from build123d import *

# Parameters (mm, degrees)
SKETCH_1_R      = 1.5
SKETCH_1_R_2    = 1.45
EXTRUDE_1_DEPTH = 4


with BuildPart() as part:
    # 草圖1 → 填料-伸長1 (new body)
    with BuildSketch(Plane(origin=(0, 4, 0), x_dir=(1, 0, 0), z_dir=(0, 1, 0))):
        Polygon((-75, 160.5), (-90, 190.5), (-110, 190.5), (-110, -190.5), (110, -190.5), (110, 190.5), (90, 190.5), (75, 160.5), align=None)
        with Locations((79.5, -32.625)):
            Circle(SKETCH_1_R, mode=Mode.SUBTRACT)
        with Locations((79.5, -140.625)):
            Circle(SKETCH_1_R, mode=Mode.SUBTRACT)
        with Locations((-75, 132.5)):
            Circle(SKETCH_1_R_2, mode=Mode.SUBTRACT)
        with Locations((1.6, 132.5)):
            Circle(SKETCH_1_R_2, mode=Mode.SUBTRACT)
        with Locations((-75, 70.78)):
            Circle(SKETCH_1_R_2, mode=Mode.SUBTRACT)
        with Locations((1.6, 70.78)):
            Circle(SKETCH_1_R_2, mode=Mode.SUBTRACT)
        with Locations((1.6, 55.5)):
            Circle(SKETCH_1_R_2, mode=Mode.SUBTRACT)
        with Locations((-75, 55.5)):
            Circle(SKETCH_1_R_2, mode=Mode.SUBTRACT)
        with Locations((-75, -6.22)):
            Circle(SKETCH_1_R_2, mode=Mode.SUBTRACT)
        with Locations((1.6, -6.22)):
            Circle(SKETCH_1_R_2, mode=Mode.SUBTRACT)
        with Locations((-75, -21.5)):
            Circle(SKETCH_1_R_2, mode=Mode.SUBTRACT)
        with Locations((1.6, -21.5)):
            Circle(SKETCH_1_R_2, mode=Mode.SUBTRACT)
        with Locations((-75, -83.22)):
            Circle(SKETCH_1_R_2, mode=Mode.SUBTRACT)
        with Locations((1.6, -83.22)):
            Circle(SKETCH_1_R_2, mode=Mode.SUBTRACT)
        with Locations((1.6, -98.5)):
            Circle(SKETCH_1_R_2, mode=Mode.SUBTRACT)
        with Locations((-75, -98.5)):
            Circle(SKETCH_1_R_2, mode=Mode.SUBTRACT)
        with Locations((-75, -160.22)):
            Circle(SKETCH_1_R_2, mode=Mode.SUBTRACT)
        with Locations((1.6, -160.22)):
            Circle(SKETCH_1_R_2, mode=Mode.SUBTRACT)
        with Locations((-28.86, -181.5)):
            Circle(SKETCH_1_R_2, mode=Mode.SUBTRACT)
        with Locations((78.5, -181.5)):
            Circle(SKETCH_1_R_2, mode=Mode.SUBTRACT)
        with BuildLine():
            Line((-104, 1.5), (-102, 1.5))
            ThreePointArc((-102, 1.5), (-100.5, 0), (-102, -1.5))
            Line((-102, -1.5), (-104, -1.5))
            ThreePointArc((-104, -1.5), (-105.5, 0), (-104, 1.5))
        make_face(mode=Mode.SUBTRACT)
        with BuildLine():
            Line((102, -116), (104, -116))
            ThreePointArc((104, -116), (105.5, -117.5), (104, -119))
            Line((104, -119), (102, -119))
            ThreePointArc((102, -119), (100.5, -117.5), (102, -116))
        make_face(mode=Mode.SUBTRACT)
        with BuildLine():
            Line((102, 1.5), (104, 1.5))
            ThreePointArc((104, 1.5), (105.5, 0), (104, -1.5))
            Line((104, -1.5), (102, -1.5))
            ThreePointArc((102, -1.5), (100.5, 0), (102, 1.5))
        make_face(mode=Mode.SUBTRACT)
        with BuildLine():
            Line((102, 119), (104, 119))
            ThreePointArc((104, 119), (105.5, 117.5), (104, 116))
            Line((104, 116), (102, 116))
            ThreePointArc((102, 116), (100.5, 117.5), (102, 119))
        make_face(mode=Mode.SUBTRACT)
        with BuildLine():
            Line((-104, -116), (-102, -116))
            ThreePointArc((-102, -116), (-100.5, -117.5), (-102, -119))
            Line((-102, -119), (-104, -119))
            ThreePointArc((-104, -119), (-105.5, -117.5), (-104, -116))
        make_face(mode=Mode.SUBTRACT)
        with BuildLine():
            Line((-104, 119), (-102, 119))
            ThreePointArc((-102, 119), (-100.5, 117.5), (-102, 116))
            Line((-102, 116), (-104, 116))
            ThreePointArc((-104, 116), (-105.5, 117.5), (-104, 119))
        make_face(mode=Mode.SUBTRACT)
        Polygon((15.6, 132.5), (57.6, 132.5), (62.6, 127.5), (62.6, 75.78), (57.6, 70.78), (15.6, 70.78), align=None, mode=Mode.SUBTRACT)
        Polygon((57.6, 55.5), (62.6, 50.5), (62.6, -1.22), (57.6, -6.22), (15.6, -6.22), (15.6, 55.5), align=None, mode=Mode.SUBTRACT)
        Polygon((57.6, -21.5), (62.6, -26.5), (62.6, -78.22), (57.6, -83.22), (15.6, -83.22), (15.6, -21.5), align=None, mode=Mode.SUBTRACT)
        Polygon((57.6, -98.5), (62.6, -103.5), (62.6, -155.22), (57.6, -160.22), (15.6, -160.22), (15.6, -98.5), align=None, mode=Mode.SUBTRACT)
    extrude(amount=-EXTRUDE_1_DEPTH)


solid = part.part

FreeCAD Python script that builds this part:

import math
import FreeCAD as App
import Part
import Sketcher
Q = App.Units.Quantity

doc = App.newDocument("Part")
body = doc.addObject("PartDesign::Body", "Body")

sketch1 = doc.addObject("Sketcher::SketchObject", "Sketch")
body.addObject(sketch1)
sketch1.AttachmentSupport = (doc.XZ_Plane, [""])
sketch1.MapMode = "FlatFace"
sketch1.AttachmentOffset = App.Placement(App.Vector(0, 0, -4), App.Rotation())
sketch1.addGeometry([
    Part.LineSegment(App.Vector(-75, -160.5, 0), App.Vector(-90, -190.5, 0)),
    Part.LineSegment(App.Vector(-90, -190.5, 0), App.Vector(-110, -190.5, 0)),
    Part.LineSegment(App.Vector(-110, -190.5, 0), App.Vector(-110, 190.5, 0)),
    Part.LineSegment(App.Vector(-110, 190.5, 0), App.Vector(110, 190.5, 0)),
    Part.LineSegment(App.Vector(110, 190.5, 0), App.Vector(110, -190.5, 0)),
    Part.LineSegment(App.Vector(110, -190.5, 0), App.Vector(90, -190.5, 0)),
    Part.LineSegment(App.Vector(90, -190.5, 0), App.Vector(75, -160.5, 0)),
    Part.LineSegment(App.Vector(75, -160.5, 0), App.Vector(-75, -160.5, 0)),
    Part.Circle(App.Vector(-75, 160.2, 0), App.Vector(0, 0, 1), 1.4),
    Part.ArcOfCircle(Part.Circle(App.Vector(-104, 117.5, 0), App.Vector(0, 0, 1), 1.5), math.radians(90), math.radians(270)),
    Part.LineSegment(App.Vector(-104, 116, 0), App.Vector(-102, 116, 0)),
    Part.ArcOfCircle(Part.Circle(App.Vector(-102, 117.5, 0), App.Vector(0, 0, 1), 1.5), math.radians(-90), math.radians(90)),
    Part.LineSegment(App.Vector(-102, 119, 0), App.Vector(-104, 119, 0)),
    Part.Circle(App.Vector(-28.9, 181.5, 0), App.Vector(0, 0, 1), 1.4),
    Part.Circle(App.Vector(-75, 98.5, 0), App.Vector(0, 0, 1), 1.4),
    Part.Circle(App.Vector(-75, 83.2, 0), App.Vector(0, 0, 1), 1.4),
    Part.Circle(App.Vector(1.6, 160.2, 0), App.Vector(0, 0, 1), 1.4),
    Part.LineSegment(App.Vector(15.6, 98.5, 0), App.Vector(57.6, 98.5, 0)),
    Part.LineSegment(App.Vector(57.6, 98.5, 0), App.Vector(62.6, 103.5, 0)),
    Part.LineSegment(App.Vector(62.6, 103.5, 0), App.Vector(62.6, 155.2, 0)),
    Part.LineSegment(App.Vector(62.6, 155.2, 0), App.Vector(57.6, 160.2, 0)),
    Part.LineSegment(App.Vector(57.6, 160.2, 0), App.Vector(15.6, 160.2, 0)),
    Part.LineSegment(App.Vector(15.6, 160.2, 0), App.Vector(15.6, 98.5, 0)),
    Part.Circle(App.Vector(78.5, 181.5, 0), App.Vector(0, 0, 1), 1.4),
    Part.Circle(App.Vector(79.5, 140.6, 0), App.Vector(0, 0, 1), 1.5),
    Part.ArcOfCircle(Part.Circle(App.Vector(102, 117.5, 0), App.Vector(0, 0, 1), 1.5), math.radians(90), math.radians(270)),
    Part.LineSegment(App.Vector(102, 116, 0), App.Vector(104, 116, 0)),
    Part.ArcOfCircle(Part.Circle(App.Vector(104, 117.5, 0), App.Vector(0, 0, 1), 1.5), math.radians(-90), math.radians(90)),
    Part.LineSegment(App.Vector(104, 119, 0), App.Vector(102, 119, 0)),
    Part.Circle(App.Vector(1.6, 98.5, 0), App.Vector(0, 0, 1), 1.4),
    Part.Circle(App.Vector(1.6, 83.2, 0), App.Vector(0, 0, 1), 1.4),
    Part.LineSegment(App.Vector(15.6, 21.5, 0), App.Vector(57.6, 21.5, 0)),
    Part.LineSegment(App.Vector(57.6, 21.5, 0), App.Vector(62.6, 26.5, 0)),
    Part.LineSegment(App.Vector(62.6, 26.5, 0), App.Vector(62.6, 78.2, 0)),
    Part.LineSegment(App.Vector(62.6, 78.2, 0), App.Vector(57.6, 83.2, 0)),
    Part.LineSegment(App.Vector(57.6, 83.2, 0), App.Vector(15.6, 83.2, 0)),
    Part.LineSegment(App.Vector(15.6, 83.2, 0), App.Vector(15.6, 21.5, 0)),
    Part.Circle(App.Vector(79.5, 32.6, 0), App.Vector(0, 0, 1), 1.5),
    Part.ArcOfCircle(Part.Circle(App.Vector(-104, 0, 0), App.Vector(0, 0, 1), 1.5), math.radians(90), math.radians(270)),
    Part.LineSegment(App.Vector(-104, -1.5, 0), App.Vector(-102, -1.5, 0)),
    Part.ArcOfCircle(Part.Circle(App.Vector(-102, 0, 0), App.Vector(0, 0, 1), 1.5), math.radians(-90), math.radians(90)),
    Part.LineSegment(App.Vector(-102, 1.5, 0), App.Vector(-104, 1.5, 0)),
    Part.Circle(App.Vector(-75, 21.5, 0), App.Vector(0, 0, 1), 1.4),
    Part.Circle(App.Vector(-75, 6.2, 0), App.Vector(0, 0, 1), 1.4),
    Part.Circle(App.Vector(-75, -55.5, 0), App.Vector(0, 0, 1), 1.4),
    Part.Circle(App.Vector(-75, -70.8, 0), App.Vector(0, 0, 1), 1.4),
    Part.ArcOfCircle(Part.Circle(App.Vector(-104, -117.5, 0), App.Vector(0, 0, 1), 1.5), math.radians(90), math.radians(270)),
    Part.LineSegment(App.Vector(-104, -119, 0), App.Vector(-102, -119, 0)),
    Part.ArcOfCircle(Part.Circle(App.Vector(-102, -117.5, 0), App.Vector(0, 0, 1), 1.5), math.radians(-90), math.radians(90)),
    Part.LineSegment(App.Vector(-102, -116, 0), App.Vector(-104, -116, 0)),
    Part.Circle(App.Vector(-75, -132.5, 0), App.Vector(0, 0, 1), 1.4),
    Part.Circle(App.Vector(1.6, 21.5, 0), App.Vector(0, 0, 1), 1.4),
    Part.Circle(App.Vector(1.6, 6.2, 0), App.Vector(0, 0, 1), 1.4),
    Part.LineSegment(App.Vector(15.6, -55.5, 0), App.Vector(57.6, -55.5, 0)),
    Part.LineSegment(App.Vector(57.6, -55.5, 0), App.Vector(62.6, -50.5, 0)),
    Part.LineSegment(App.Vector(62.6, -50.5, 0), App.Vector(62.6, 1.2, 0)),
    Part.LineSegment(App.Vector(62.6, 1.2, 0), App.Vector(57.6, 6.2, 0)),
    Part.LineSegment(App.Vector(57.6, 6.2, 0), App.Vector(15.6, 6.2, 0)),
    Part.LineSegment(App.Vector(15.6, 6.2, 0), App.Vector(15.6, -55.5, 0)),
    Part.ArcOfCircle(Part.Circle(App.Vector(102, 0, 0), App.Vector(0, 0, 1), 1.5), math.radians(90), math.radians(270)),
    Part.LineSegment(App.Vector(102, -1.5, 0), App.Vector(104, -1.5, 0)),
    Part.ArcOfCircle(Part.Circle(App.Vector(104, 0, 0), App.Vector(0, 0, 1), 1.5), math.radians(-90), math.radians(90)),
    Part.LineSegment(App.Vector(104, 1.5, 0), App.Vector(102, 1.5, 0)),
    Part.Circle(App.Vector(1.6, -55.5, 0), App.Vector(0, 0, 1), 1.4),
    Part.Circle(App.Vector(1.6, -70.8, 0), App.Vector(0, 0, 1), 1.4),
    Part.Circle(App.Vector(1.6, -132.5, 0), App.Vector(0, 0, 1), 1.4),
    Part.LineSegment(App.Vector(15.6, -70.8, 0), App.Vector(15.6, -132.5, 0)),
    Part.LineSegment(App.Vector(15.6, -132.5, 0), App.Vector(57.6, -132.5, 0)),
    Part.LineSegment(App.Vector(57.6, -132.5, 0), App.Vector(62.6, -127.5, 0)),
    Part.LineSegment(App.Vector(62.6, -127.5, 0), App.Vector(62.6, -75.8, 0)),
    Part.LineSegment(App.Vector(62.6, -75.8, 0), App.Vector(57.6, -70.8, 0)),
    Part.LineSegment(App.Vector(57.6, -70.8, 0), App.Vector(15.6, -70.8, 0)),
    Part.ArcOfCircle(Part.Circle(App.Vector(102, -117.5, 0), App.Vector(0, 0, 1), 1.5), math.radians(90), math.radians(270)),
    Part.LineSegment(App.Vector(102, -119, 0), App.Vector(104, -119, 0)),
    Part.ArcOfCircle(Part.Circle(App.Vector(104, -117.5, 0), App.Vector(0, 0, 1), 1.5), math.radians(-90), math.radians(90)),
    Part.LineSegment(App.Vector(104, -116, 0), App.Vector(102, -116, 0)),
], False)
sketch1.addConstraint([
    Sketcher.Constraint("Coincident", 0, 2, 1, 1),
    Sketcher.Constraint("Coincident", 1, 2, 2, 1),
    Sketcher.Constraint("Coincident", 2, 2, 3, 1),
    Sketcher.Constraint("Coincident", 3, 2, 4, 1),
    Sketcher.Constraint("Coincident", 4, 2, 5, 1),
    Sketcher.Constraint("Coincident", 5, 2, 6, 1),
    Sketcher.Constraint("Coincident", 6, 2, 7, 1),
    Sketcher.Constraint("Coincident", 7, 2, 0, 1),
    Sketcher.Constraint("Tangent", 9, 2, 10, 1),
    Sketcher.Constraint("Tangent", 10, 2, 11, 1),
    Sketcher.Constraint("Tangent", 11, 2, 12, 1),
    Sketcher.Constraint("Tangent", 12, 2, 9, 1),
    Sketcher.Constraint("Coincident", 17, 2, 18, 1),
    Sketcher.Constraint("Coincident", 18, 2, 19, 1),
    Sketcher.Constraint("Coincident", 19, 2, 20, 1),
    Sketcher.Constraint("Coincident", 20, 2, 21, 1),
    Sketcher.Constraint("Coincident", 21, 2, 22, 1),
    Sketcher.Constraint("Coincident", 22, 2, 17, 1),
    Sketcher.Constraint("Tangent", 25, 2, 26, 1),
    Sketcher.Constraint("Tangent", 26, 2, 27, 1),
    Sketcher.Constraint("Tangent", 27, 2, 28, 1),
    Sketcher.Constraint("Tangent", 28, 2, 25, 1),
    Sketcher.Constraint("Coincident", 31, 2, 32, 1),
    Sketcher.Constraint("Coincident", 32, 2, 33, 1),
    Sketcher.Constraint("Coincident", 33, 2, 34, 1),
    Sketcher.Constraint("Coincident", 34, 2, 35, 1),
    Sketcher.Constraint("Coincident", 35, 2, 36, 1),
    Sketcher.Constraint("Coincident", 36, 2, 31, 1),
    Sketcher.Constraint("Tangent", 38, 2, 39, 1),
    Sketcher.Constraint("Tangent", 39, 2, 40, 1),
    Sketcher.Constraint("Tangent", 40, 2, 41, 1),
    Sketcher.Constraint("Tangent", 41, 2, 38, 1),
    Sketcher.Constraint("Tangent", 46, 2, 47, 1),
    Sketcher.Constraint("Tangent", 47, 2, 48, 1),
    Sketcher.Constraint("Tangent", 48, 2, 49, 1),
    Sketcher.Constraint("Tangent", 49, 2, 46, 1),
    Sketcher.Constraint("Coincident", 53, 2, 54, 1),
    Sketcher.Constraint("Coincident", 54, 2, 55, 1),
    Sketcher.Constraint("Coincident", 55, 2, 56, 1),
    Sketcher.Constraint("Coincident", 56, 2, 57, 1),
    Sketcher.Constraint("Coincident", 57, 2, 58, 1),
    Sketcher.Constraint("Coincident", 58, 2, 53, 1),
    Sketcher.Constraint("Tangent", 59, 2, 60, 1),
    Sketcher.Constraint("Tangent", 60, 2, 61, 1),
    Sketcher.Constraint("Tangent", 61, 2, 62, 1),
    Sketcher.Constraint("Tangent", 62, 2, 59, 1),
    Sketcher.Constraint("Coincident", 66, 2, 67, 1),
    Sketcher.Constraint("Coincident", 67, 2, 68, 1),
    Sketcher.Constraint("Coincident", 68, 2, 69, 1),
    Sketcher.Constraint("Coincident", 69, 2, 70, 1),
    Sketcher.Constraint("Coincident", 70, 2, 71, 1),
    Sketcher.Constraint("Coincident", 71, 2, 66, 1),
    Sketcher.Constraint("Tangent", 72, 2, 73, 1),
    Sketcher.Constraint("Tangent", 73, 2, 74, 1),
    Sketcher.Constraint("Tangent", 74, 2, 75, 1),
    Sketcher.Constraint("Tangent", 75, 2, 72, 1),
    Sketcher.Constraint("Horizontal", 1),
    Sketcher.Constraint("Vertical", 2),
    Sketcher.Constraint("Horizontal", 3),
    Sketcher.Constraint("Vertical", 4),
    Sketcher.Constraint("Horizontal", 5),
    Sketcher.Constraint("Horizontal", 7),
    Sketcher.Constraint("Horizontal", 10),
    Sketcher.Constraint("Horizontal", 12),
    Sketcher.Constraint("Horizontal", 17),
    Sketcher.Constraint("Vertical", 19),
    Sketcher.Constraint("Horizontal", 21),
    Sketcher.Constraint("Vertical", 22),
    Sketcher.Constraint("Horizontal", 26),
    Sketcher.Constraint("Horizontal", 28),
    Sketcher.Constraint("Horizontal", 31),
    Sketcher.Constraint("Vertical", 33),
    Sketcher.Constraint("Horizontal", 35),
    Sketcher.Constraint("Vertical", 36),
    Sketcher.Constraint("Horizontal", 39),
    Sketcher.Constraint("Horizontal", 41),
    Sketcher.Constraint("Horizontal", 47),
    Sketcher.Constraint("Horizontal", 49),
    Sketcher.Constraint("Horizontal", 53),
    Sketcher.Constraint("Vertical", 55),
    Sketcher.Constraint("Horizontal", 57),
    Sketcher.Constraint("Vertical", 58),
    Sketcher.Constraint("Horizontal", 60),
    Sketcher.Constraint("Horizontal", 62),
    Sketcher.Constraint("Vertical", 66),
    Sketcher.Constraint("Horizontal", 67),
    Sketcher.Constraint("Vertical", 69),
    Sketcher.Constraint("Horizontal", 71),
    Sketcher.Constraint("Horizontal", 73),
    Sketcher.Constraint("Horizontal", 75),
    Sketcher.Constraint("Equal", 8, 13),
    Sketcher.Constraint("Equal", 13, 14),
    Sketcher.Constraint("Equal", 14, 15),
    Sketcher.Constraint("Equal", 15, 16),
    Sketcher.Constraint("Equal", 16, 23),
    Sketcher.Constraint("Equal", 11, 24),
    Sketcher.Constraint("Equal", 24, 25),
    Sketcher.Constraint("Equal", 23, 29),
    Sketcher.Constraint("Equal", 29, 30),
    Sketcher.Constraint("Equal", 27, 37),
    Sketcher.Constraint("Equal", 37, 38),
    Sketcher.Constraint("Equal", 30, 42),
    Sketcher.Constraint("Equal", 42, 43),
    Sketcher.Constraint("Equal", 43, 44),
    Sketcher.Constraint("Equal", 44, 45),
    Sketcher.Constraint("Equal", 40, 46),
    Sketcher.Constraint("Equal", 45, 50),
    Sketcher.Constraint("Equal", 50, 51),
    Sketcher.Constraint("Equal", 51, 52),
    Sketcher.Constraint("Equal", 48, 59),
    Sketcher.Constraint("Equal", 52, 63),
    Sketcher.Constraint("Equal", 63, 64),
    Sketcher.Constraint("Equal", 64, 65),
    Sketcher.Constraint("Equal", 61, 72),
    Sketcher.Constraint("Symmetric", 27, 3, 46, 3, -1, 1),
    Sketcher.Constraint("Symmetric", 40, 3, 59, 3, -1, 1),
    Sketcher.Constraint("Symmetric", 11, 3, 72, 3, -1, 1),
    Sketcher.Constraint("Symmetric", 1, 2, 3, 2, -1, 1),
    Sketcher.Constraint("Symmetric", 11, 3, 25, 3, -2),
    Sketcher.Constraint("Symmetric", 38, 3, 61, 3, -2),
    Sketcher.Constraint("Symmetric", 0, 2, 5, 2, -2),
    Sketcher.Constraint("Perpendicular", 18, 20),
    Sketcher.Constraint("Perpendicular", 20, 32),
    Sketcher.Constraint("Perpendicular", 32, 34),
    Sketcher.Constraint("Perpendicular", 34, 54),
    Sketcher.Constraint("Perpendicular", 54, 56),
    Sketcher.Constraint("Perpendicular", 56, 68),
    Sketcher.Constraint("Perpendicular", 68, 70),
    Sketcher.Constraint("Horizontal", 8, 3, 16, 3),
    Sketcher.Constraint("Horizontal", 13, 3, 23, 3),
    Sketcher.Constraint("Horizontal", 14, 3, 29, 3),
    Sketcher.Constraint("Horizontal", 15, 3, 30, 3),
    Sketcher.Constraint("Horizontal", 42, 3, 51, 3),
    Sketcher.Constraint("Horizontal", 43, 3, 52, 3),
    Sketcher.Constraint("Horizontal", 44, 3, 63, 3),
    Sketcher.Constraint("Horizontal", 45, 3, 64, 3),
    Sketcher.Constraint("Horizontal", 50, 3, 65, 3),
    Sketcher.Constraint("Horizontal", 29, 3, 17, 2),
    Sketcher.Constraint("Horizontal", 16, 3, 20, 2),
    Sketcher.Constraint("Horizontal", 51, 3, 31, 2),
    Sketcher.Constraint("Horizontal", 30, 3, 34, 2),
    Sketcher.Constraint("Horizontal", 63, 3, 53, 2),
    Sketcher.Constraint("Horizontal", 52, 3, 56, 2),
    Sketcher.Constraint("Horizontal", 65, 3, 66, 2),
    Sketcher.Constraint("Horizontal", 64, 3, 70, 2),
    Sketcher.Constraint("Vertical", 8, 3, 14, 3),
    Sketcher.Constraint("Vertical", 14, 3, 15, 3),
    Sketcher.Constraint("Vertical", 16, 3, 29, 3),
    Sketcher.Constraint("Vertical", 29, 3, 30, 3),
    Sketcher.Constraint("Vertical", 24, 3, 37, 3),
    Sketcher.Constraint("Vertical", 9, 3, 38, 3),
    Sketcher.Constraint("Vertical", 11, 3, 40, 3),
    Sketcher.Constraint("Vertical", 15, 3, 42, 3),
    Sketcher.Constraint("Vertical", 42, 3, 43, 3),
    Sketcher.Constraint("Vertical", 43, 3, 44, 3),
    Sketcher.Constraint("Vertical", 44, 3, 45, 3),
    Sketcher.Constraint("Vertical", 38, 3, 46, 3),
    Sketcher.Constraint("Vertical", 40, 3, 48, 3),
    Sketcher.Constraint("Vertical", 45, 3, 50, 3),
    Sketcher.Constraint("Vertical", 30, 3, 51, 3),
    Sketcher.Constraint("Vertical", 51, 3, 52, 3),
    Sketcher.Constraint("Vertical", 52, 3, 63, 3),
    Sketcher.Constraint("Vertical", 63, 3, 64, 3),
    Sketcher.Constraint("Vertical", 64, 3, 65, 3),
    Sketcher.Constraint("Vertical", 61, 3, 74, 3),
    Sketcher.Constraint("Vertical", 50, 3, 7, 2),
    Sketcher.Constraint("Vertical", 17, 2, 20, 2),
    Sketcher.Constraint("Vertical", 20, 2, 31, 2),
    Sketcher.Constraint("Vertical", 19, 2, 32, 2),
    Sketcher.Constraint("Vertical", 31, 2, 34, 2),
    Sketcher.Constraint("Vertical", 22, 2, 35, 2),
    Sketcher.Constraint("Vertical", 34, 2, 53, 2),
    Sketcher.Constraint("Vertical", 33, 2, 54, 2),
    Sketcher.Constraint("Vertical", 53, 2, 56, 2),
    Sketcher.Constraint("Vertical", 36, 2, 57, 2),
    Sketcher.Constraint("Vertical", 58, 2, 66, 2),
    Sketcher.Constraint("Vertical", 56, 2, 67, 2),
    Sketcher.Constraint("Vertical", 55, 2, 68, 2),
    Sketcher.Constraint("Vertical", 67, 2, 70, 2),
    Sketcher.Constraint("Equal", 19, 33),
    Sketcher.Constraint("Equal", 33, 55),
    Sketcher.Constraint("Equal", 58, 66),
    Sketcher.Constraint("Equal", 0, 6),
    Sketcher.Constraint("Equal", 18, 20),
    Sketcher.Constraint("Diameter", 24, Q("3 mm")),
    Sketcher.Constraint("Diameter", 8, Q("2.9 mm")),
    Sketcher.Constraint("DistanceX", 1, 2, 1, 1, Q("20 mm")),
    Sketcher.Constraint("DistanceX", 3, 1, 3, 2, Q("220 mm")),
    Sketcher.Constraint("DistanceX", 7, 2, 7, 1, Q("150 mm")),
    Sketcher.Constraint("DistanceX", 10, 1, 10, 2, Q("2 mm")),
    Sketcher.Constraint("DistanceX", 17, 1, 17, 2, Q("42 mm")),
    Sketcher.Constraint("DistanceY", 2, 1, 2, 2, Q("381 mm")),
    Sketcher.Constraint("DistanceX", 9, 3, -1, 1, Q("104 mm")),
    Sketcher.Constraint("DistanceY", -1, 1, 9, 2, Q("116 mm")),
    Sketcher.Constraint("DistanceY", 19, 1, 19, 2, Q("51.72 mm")),
    Sketcher.Constraint("DistanceY", 22, 2, 22, 1, Q("61.72 mm")),
    Sketcher.Constraint("DistanceY", -1, 1, 13, 3, Q("181.5 mm")),
    Sketcher.Constraint("DistanceY", -1, 1, 14, 3, Q("98.5 mm")),
    Sketcher.Constraint("DistanceX", -1, 1, 16, 3, Q("1.6 mm")),
    Sketcher.Constraint("DistanceX", -1, 1, 23, 3, Q("78.5 mm")),
    Sketcher.Constraint("DistanceX", -1, 1, 24, 3, Q("79.5 mm")),
    Sketcher.Constraint("DistanceY", -1, 1, 42, 3, Q("21.5 mm")),
    Sketcher.Constraint("DistanceY", 44, 3, -1, 1, Q("55.5 mm")),
    Sketcher.Constraint("DistanceY", 50, 3, -1, 1, Q("132.5 mm")),
    Sketcher.Constraint("DistanceY", 6, 2, -1, 1, Q("160.5 mm")),
    Sketcher.Constraint("DistanceX", -1, 1, 17, 2, Q("57.6 mm")),
    Sketcher.Constraint("DistanceX", 13, 3, -1, 1, Q("28.86 mm")),
    Sketcher.Constraint("DistanceY", -1, 1, 24, 3, Q("140.625 mm")),
    Sketcher.Constraint("DistanceY", -1, 1, 37, 3, Q("32.625 mm")),
])
pad1 = doc.addObject("PartDesign::Pad", "Pad")
body.addObject(pad1)
pad1.Profile = sketch1
pad1.Length = 4

doc.recompute()
